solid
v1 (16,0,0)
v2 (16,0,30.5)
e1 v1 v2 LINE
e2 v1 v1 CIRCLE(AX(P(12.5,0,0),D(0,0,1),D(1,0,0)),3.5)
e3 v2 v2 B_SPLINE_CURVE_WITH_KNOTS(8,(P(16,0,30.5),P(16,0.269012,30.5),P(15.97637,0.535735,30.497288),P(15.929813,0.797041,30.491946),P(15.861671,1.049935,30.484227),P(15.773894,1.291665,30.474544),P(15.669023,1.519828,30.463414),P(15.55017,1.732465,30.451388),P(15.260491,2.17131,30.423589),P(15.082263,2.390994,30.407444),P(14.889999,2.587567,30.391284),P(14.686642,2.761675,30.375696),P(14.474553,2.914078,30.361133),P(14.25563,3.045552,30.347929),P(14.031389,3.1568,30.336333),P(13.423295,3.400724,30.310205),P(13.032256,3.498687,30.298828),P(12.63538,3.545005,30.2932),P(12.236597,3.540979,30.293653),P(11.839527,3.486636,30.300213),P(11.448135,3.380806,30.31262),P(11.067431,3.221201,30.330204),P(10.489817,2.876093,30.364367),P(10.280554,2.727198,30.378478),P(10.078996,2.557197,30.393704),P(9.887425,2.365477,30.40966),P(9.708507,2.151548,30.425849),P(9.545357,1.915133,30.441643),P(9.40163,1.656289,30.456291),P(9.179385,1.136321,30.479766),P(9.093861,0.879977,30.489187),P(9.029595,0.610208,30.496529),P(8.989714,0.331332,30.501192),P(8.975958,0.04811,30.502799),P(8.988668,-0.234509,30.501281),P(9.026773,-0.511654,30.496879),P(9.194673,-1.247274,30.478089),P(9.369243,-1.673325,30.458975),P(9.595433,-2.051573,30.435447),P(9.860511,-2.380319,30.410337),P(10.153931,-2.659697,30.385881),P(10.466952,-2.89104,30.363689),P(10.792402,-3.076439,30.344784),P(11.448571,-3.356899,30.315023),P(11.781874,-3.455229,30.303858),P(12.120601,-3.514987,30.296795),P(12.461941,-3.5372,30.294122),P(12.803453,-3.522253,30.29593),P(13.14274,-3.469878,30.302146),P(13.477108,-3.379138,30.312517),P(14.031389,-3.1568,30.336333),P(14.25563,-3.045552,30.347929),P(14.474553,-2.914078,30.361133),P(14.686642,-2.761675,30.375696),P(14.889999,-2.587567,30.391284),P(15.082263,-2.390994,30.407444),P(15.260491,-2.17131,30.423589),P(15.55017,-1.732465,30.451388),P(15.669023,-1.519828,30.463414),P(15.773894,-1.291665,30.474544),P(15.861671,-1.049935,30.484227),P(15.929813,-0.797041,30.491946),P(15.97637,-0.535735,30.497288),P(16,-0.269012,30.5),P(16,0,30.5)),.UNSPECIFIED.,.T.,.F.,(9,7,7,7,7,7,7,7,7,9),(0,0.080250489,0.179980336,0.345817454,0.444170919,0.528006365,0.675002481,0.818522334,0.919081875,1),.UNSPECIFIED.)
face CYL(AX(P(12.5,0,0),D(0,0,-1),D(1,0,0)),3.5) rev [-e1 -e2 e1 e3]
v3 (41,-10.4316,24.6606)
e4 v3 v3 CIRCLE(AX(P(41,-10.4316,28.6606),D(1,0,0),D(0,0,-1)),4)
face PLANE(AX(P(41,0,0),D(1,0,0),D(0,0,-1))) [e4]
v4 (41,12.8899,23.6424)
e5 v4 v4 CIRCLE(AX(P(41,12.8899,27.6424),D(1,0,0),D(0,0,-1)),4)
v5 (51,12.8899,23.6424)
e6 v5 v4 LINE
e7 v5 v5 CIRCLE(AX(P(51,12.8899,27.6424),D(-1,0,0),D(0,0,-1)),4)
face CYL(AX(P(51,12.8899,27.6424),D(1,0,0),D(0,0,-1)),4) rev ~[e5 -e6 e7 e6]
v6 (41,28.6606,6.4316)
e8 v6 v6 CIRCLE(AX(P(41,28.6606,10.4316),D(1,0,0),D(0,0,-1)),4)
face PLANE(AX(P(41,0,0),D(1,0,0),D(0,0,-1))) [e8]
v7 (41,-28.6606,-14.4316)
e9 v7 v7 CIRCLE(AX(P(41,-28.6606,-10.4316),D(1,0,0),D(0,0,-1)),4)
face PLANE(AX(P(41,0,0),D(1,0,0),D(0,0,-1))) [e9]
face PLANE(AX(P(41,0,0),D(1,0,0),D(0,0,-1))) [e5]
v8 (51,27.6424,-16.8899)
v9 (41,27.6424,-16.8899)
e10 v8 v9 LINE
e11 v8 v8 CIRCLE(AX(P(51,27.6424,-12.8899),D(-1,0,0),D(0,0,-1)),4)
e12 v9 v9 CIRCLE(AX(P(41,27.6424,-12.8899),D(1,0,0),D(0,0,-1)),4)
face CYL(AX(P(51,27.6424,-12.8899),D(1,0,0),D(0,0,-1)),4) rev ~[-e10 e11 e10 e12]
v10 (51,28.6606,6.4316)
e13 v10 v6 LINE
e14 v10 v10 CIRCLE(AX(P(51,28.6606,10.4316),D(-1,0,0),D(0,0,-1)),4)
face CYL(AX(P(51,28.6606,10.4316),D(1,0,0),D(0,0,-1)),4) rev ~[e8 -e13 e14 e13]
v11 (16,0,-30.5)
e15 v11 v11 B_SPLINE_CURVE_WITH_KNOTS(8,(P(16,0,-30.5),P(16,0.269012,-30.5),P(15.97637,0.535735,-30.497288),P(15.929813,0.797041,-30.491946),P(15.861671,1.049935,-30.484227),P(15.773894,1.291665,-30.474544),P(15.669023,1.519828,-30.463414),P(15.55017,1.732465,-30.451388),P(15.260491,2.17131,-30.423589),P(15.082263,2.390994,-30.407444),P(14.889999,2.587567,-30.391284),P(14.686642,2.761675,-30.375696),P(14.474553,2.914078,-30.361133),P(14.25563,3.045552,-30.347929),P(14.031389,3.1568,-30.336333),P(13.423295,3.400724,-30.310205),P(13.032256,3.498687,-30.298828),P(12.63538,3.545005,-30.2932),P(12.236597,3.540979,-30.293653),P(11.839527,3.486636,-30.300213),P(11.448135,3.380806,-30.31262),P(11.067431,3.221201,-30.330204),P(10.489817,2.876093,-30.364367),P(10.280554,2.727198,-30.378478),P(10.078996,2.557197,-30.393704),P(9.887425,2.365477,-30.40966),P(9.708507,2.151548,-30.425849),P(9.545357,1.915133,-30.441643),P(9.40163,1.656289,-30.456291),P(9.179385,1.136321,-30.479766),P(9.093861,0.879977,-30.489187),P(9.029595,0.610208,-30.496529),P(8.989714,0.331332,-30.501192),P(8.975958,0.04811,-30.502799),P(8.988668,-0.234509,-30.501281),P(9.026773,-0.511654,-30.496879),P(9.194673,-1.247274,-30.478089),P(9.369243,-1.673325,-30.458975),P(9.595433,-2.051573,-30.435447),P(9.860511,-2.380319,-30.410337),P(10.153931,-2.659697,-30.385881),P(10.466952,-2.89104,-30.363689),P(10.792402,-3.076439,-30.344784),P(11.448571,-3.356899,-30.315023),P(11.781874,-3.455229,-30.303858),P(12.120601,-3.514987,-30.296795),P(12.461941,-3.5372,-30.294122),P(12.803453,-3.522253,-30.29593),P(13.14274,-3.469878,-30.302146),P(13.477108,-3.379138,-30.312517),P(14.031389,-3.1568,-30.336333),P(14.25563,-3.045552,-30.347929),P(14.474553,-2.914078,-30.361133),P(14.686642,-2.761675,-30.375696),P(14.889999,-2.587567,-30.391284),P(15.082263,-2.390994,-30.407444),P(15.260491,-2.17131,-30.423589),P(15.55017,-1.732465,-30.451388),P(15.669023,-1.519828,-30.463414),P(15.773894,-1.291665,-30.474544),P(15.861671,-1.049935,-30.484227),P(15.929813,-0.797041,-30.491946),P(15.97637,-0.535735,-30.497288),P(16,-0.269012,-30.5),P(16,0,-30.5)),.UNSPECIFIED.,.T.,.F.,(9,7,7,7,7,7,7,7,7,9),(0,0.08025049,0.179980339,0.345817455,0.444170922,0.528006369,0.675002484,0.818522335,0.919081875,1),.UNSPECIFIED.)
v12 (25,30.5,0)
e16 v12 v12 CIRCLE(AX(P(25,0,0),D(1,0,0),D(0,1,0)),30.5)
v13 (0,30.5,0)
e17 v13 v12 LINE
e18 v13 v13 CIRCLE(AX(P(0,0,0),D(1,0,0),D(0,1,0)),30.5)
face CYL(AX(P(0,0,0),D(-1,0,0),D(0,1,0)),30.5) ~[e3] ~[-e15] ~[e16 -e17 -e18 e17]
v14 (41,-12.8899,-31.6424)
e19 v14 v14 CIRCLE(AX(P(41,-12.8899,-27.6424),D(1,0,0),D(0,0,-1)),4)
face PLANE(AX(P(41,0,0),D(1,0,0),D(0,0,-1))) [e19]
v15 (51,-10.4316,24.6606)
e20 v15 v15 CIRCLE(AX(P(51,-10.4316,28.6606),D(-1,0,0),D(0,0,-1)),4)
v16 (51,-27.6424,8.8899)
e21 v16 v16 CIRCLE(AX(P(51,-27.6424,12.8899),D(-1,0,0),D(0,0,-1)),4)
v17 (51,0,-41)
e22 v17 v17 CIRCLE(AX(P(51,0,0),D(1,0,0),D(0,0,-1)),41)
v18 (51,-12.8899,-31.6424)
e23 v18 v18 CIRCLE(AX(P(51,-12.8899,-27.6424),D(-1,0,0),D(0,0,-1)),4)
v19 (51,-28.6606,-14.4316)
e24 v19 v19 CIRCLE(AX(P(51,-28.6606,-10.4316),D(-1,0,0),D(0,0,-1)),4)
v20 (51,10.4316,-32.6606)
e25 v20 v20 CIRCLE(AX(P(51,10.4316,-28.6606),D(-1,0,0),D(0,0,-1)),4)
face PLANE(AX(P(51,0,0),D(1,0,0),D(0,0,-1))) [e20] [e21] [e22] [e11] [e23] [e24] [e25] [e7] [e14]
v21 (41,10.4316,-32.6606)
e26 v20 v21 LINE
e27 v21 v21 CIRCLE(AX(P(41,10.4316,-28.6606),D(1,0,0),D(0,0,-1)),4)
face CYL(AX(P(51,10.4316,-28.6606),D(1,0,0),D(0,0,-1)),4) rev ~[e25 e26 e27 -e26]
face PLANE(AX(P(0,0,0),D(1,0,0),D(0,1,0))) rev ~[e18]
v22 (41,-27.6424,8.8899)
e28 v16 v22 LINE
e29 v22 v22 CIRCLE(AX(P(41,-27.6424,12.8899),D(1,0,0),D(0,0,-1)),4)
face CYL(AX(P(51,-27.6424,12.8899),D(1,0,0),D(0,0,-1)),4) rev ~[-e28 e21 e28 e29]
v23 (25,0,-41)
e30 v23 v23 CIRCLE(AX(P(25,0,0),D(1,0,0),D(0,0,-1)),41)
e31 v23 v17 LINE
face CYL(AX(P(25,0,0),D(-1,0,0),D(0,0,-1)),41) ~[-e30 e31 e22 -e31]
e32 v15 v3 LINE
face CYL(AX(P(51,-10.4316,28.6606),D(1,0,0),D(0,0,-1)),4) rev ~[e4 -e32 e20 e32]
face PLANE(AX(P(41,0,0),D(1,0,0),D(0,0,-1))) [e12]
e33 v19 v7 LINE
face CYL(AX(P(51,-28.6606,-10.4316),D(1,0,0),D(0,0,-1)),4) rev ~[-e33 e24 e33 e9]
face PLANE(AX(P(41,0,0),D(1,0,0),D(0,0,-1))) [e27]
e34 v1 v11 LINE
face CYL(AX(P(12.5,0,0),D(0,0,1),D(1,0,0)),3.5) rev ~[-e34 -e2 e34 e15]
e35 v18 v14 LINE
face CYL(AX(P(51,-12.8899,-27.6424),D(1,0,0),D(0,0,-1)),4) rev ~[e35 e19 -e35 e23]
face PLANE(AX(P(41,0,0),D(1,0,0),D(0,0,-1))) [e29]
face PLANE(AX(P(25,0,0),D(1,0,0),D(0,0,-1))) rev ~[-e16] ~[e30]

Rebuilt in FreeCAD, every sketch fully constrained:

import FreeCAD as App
import Part
import Sketcher
from FreeCAD import Vector
Q = App.Units.Quantity

doc = App.newDocument("Part")
body = doc.addObject("PartDesign::Body", "Body")

# Sketch on YZ plane
sketch1 = doc.addObject("Sketcher::SketchObject", "Sketch")
body.addObject(sketch1)
sketch1.AttachmentSupport = (doc.YZ_Plane, [""])
sketch1.MapMode = "FlatFace"
sketch1.addGeometry(Part.Circle(Vector(0, 0, 0), Vector(0, 0, 1), 30.5), False)
sketch1.addConstraint([
    Sketcher.Constraint("Coincident", 0, 3, -1, 1),
    Sketcher.Constraint("Diameter", 0, Q("61 mm")),
])
pad1 = doc.addObject("PartDesign::Pad", "Pad")
body.addObject(pad1)
pad1.Profile = sketch1
pad1.Length = 25

# Sketch on YZ plane
sketch2 = doc.addObject("Sketcher::SketchObject", "Sketch001")
body.addObject(sketch2)
sketch2.AttachmentSupport = (doc.YZ_Plane, [""])
sketch2.MapMode = "FlatFace"
sketch2.AttachmentOffset = App.Placement(Vector(0, 0, 25), App.Rotation())
sketch2.addGeometry(Part.Circle(Vector(0, 0, 0), Vector(0, 0, 1), 41), False)
sketch2.addConstraint([
    Sketcher.Constraint("Coincident", 0, 3, -1, 1),
    Sketcher.Constraint("Diameter", 0, Q("82 mm")),
])
pad2 = doc.addObject("PartDesign::Pad", "Pad001")
body.addObject(pad2)
pad2.Profile = sketch2
pad2.Length = 26

# Sketch on XY plane
sketch3 = doc.addObject("Sketcher::SketchObject", "Sketch002")
body.addObject(sketch3)
sketch3.AttachmentSupport = (doc.XY_Plane, [""])
sketch3.MapMode = "FlatFace"
sketch3.addGeometry(Part.Circle(Vector(12.5, 0, 0), Vector(0, 0, 1), 3.5), False)
sketch3.addConstraint([
    Sketcher.Constraint("PointOnObject", 0, 3, -1),
    Sketcher.Constraint("Diameter", 0, Q("7 mm")),
    Sketcher.Constraint("DistanceX", -1, 1, 0, 3, Q("12.5 mm")),
])
pocket1 = doc.addObject("PartDesign::Pocket", "Pocket")
body.addObject(pocket1)
pocket1.Profile = sketch3
pocket1.Type = "ThroughAll"
pocket1.Midplane = True

# Sketch on YZ plane
sketch4 = doc.addObject("Sketcher::SketchObject", "Sketch003")
body.addObject(sketch4)
sketch4.AttachmentSupport = (doc.YZ_Plane, [""])
sketch4.MapMode = "FlatFace"
sketch4.AttachmentOffset = App.Placement(Vector(0, 0, 51), App.Rotation())
sketch4.addGeometry([
    Part.Circle(Vector(10.4316, -28.6606, 0), Vector(0, 0, 1), 4),  # 0
    Part.Circle(Vector(-12.8899, -27.6424, 0), Vector(0, 0, 1), 4),  # 1
    Part.Circle(Vector(27.6424, -12.8899, 0), Vector(0, 0, 1), 4),  # 2
    Part.Circle(Vector(28.6606, 10.4316, 0), Vector(0, 0, 1), 4),  # 3
    Part.Circle(Vector(12.8899, 27.6424, 0), Vector(0, 0, 1), 4),  # 4
    Part.Circle(Vector(-10.4316, 28.6606, 0), Vector(0, 0, 1), 4),  # 5
    Part.Circle(Vector(-27.6424, 12.8899, 0), Vector(0, 0, 1), 4),  # 6
    Part.Circle(Vector(-28.6606, -10.4316, 0), Vector(0, 0, 1), 4),  # 7
], False)
sketch4.addConstraint([
    Sketcher.Constraint("Equal", 0, 1),
    Sketcher.Constraint("Equal", 1, 2),
    Sketcher.Constraint("Equal", 2, 3),
    Sketcher.Constraint("Equal", 3, 4),
    Sketcher.Constraint("Equal", 4, 5),
    Sketcher.Constraint("Equal", 5, 6),
    Sketcher.Constraint("Equal", 6, 7),
    Sketcher.Constraint("Symmetric", 1, 3, 4, 3, -1, 1),
    Sketcher.Constraint("Symmetric", 0, 3, 5, 3, -1, 1),
    Sketcher.Constraint("Symmetric", 2, 3, 6, 3, -1, 1),
    Sketcher.Constraint("Symmetric", 3, 3, 7, 3, -1, 1),
    Sketcher.Constraint("Diameter", 0, Q("8 mm")),
    Sketcher.Constraint("DistanceX", 1, 3, -1, 1, Q("12.89 mm")),
    Sketcher.Constraint("DistanceY", 2, 3, -1, 1, Q("12.89 mm")),
    Sketcher.Constraint("DistanceX", 0, 3, 3, 3, Q("18.229 mm")),
    Sketcher.Constraint("DistanceY", 1, 3, 3, 3, Q("38.074 mm")),
    Sketcher.Constraint("DistanceY", 0, 3, 4, 3, Q("56.303 mm")),
    Sketcher.Constraint("DistanceX", 5, 3, 2, 3, Q("38.074 mm")),
    Sketcher.Constraint("DistanceX", -1, 1, 0, 3, Q("10.4316 mm")),
    Sketcher.Constraint("DistanceY", 0, 3, -1, 1, Q("28.6606 mm")),
])
pocket2 = doc.addObject("PartDesign::Pocket", "Pocket001")
body.addObject(pocket2)
pocket2.Profile = sketch4
pocket2.Length = 10

doc.recompute()
